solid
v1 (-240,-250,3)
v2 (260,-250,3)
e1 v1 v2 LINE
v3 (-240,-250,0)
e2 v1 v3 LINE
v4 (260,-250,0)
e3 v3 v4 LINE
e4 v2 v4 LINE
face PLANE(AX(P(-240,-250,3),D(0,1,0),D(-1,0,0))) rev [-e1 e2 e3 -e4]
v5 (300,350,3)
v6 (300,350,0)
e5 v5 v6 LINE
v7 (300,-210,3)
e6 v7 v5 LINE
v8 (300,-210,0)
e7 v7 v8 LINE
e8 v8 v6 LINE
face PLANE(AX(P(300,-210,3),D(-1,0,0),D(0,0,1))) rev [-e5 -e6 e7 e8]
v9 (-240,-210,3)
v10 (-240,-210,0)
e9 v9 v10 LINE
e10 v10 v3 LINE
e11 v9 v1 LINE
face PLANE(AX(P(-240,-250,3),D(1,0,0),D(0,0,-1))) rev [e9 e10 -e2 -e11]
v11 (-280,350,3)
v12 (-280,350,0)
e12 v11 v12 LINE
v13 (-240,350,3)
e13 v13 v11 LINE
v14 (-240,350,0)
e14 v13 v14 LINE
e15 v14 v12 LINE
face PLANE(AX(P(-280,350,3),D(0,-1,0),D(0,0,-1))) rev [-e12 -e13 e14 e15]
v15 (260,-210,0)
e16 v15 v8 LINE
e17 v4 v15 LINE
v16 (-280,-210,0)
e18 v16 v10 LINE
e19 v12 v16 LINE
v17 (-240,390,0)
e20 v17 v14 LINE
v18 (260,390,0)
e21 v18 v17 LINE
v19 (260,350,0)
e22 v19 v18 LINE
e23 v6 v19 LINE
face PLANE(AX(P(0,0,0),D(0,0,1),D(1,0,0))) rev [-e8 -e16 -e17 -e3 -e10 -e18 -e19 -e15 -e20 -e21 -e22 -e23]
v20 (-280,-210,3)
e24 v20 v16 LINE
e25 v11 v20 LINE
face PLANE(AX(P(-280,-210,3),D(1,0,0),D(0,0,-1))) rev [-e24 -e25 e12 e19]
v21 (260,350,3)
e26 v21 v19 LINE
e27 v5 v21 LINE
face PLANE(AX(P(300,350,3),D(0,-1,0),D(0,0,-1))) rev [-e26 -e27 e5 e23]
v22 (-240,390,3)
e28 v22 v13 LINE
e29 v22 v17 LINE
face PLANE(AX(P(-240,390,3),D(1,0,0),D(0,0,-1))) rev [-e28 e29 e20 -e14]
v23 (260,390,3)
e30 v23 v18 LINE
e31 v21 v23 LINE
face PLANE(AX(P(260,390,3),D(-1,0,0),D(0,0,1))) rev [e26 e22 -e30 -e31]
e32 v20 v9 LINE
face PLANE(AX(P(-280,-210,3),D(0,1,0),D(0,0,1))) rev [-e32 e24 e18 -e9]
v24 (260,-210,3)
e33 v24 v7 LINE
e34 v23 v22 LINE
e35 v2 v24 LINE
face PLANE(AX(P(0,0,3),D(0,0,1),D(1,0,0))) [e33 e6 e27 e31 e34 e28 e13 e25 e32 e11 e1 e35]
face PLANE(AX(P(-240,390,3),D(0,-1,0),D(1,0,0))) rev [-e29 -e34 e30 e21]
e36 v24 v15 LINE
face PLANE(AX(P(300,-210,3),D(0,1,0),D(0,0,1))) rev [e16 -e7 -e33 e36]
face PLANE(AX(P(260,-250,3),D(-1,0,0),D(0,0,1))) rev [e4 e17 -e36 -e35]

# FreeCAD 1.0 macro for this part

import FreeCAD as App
import Part
import Sketcher
from FreeCAD import Vector


def add_polygon(sketch, points):
    """Adds a closed chain of lines whose ends are joined by coincident constraints."""
    first, n = sketch.GeometryCount, len(points)
    for a, b in zip(points, points[1:] + points[:1]):
        sketch.addGeometry(Part.LineSegment(App.Vector(*a, 0), App.Vector(*b, 0)), False)
    for i in range(n):
        sketch.addConstraint(Sketcher.Constraint("Coincident", first + i, 2, first + (i + 1) % n, 1))

doc = App.newDocument("Part")
body = doc.addObject("PartDesign::Body", "Body")

sketch1 = body.newObject("Sketcher::SketchObject", "Sketch")
sketch1.AttachmentSupport = (doc.getObject("XY_Plane"), [""])
sketch1.MapMode = "FlatFace"
add_polygon(sketch1, [(-240, -250), (260, -250), (260, -210), (300, -210), (300, 350), (260, 350), (260, 390), (-240, 390), (-240, 350), (-280, 350), (-280, -210), (-240, -210)])
sketch1.addConstraint([
    Sketcher.Constraint("Horizontal", 0),
    Sketcher.Constraint("Vertical", 1),
    Sketcher.Constraint("Horizontal", 2),
    Sketcher.Constraint("Vertical", 3),
    Sketcher.Constraint("Horizontal", 4),
    Sketcher.Constraint("Vertical", 5),
    Sketcher.Constraint("Horizontal", 6),
    Sketcher.Constraint("Vertical", 7),
    Sketcher.Constraint("Horizontal", 8),
    Sketcher.Constraint("Vertical", 9),
    Sketcher.Constraint("Horizontal", 10),
    Sketcher.Constraint("Vertical", 11),
    Sketcher.Constraint("Horizontal", 4, 2, 7, 2),
    Sketcher.Constraint("Horizontal", 2, 2, 9, 2),
    Sketcher.Constraint("Vertical", 1, 2, 4, 2),
    Sketcher.Constraint("Vertical", 7, 2, 10, 2),
    Sketcher.Constraint("Equal", 4, 8),
    Sketcher.Constraint("Equal", 10, 1),
    Sketcher.Constraint("Equal", 1, 5),
    Sketcher.Constraint("DistanceX", 0, 1, 0, 2, 500.0),
    Sketcher.Constraint("DistanceX", 2, 1, 2, 2, 40.0),
    Sketcher.Constraint("DistanceY", 3, 1, 3, 2, 560.0),
    Sketcher.Constraint("DistanceX", -1, 1, 0, 2, 260.0),
    Sketcher.Constraint("DistanceY", 0, 2, -1, 1, 250.0),
])
pad1 = body.newObject("PartDesign::Pad", "Pad")
pad1.Profile = sketch1
pad1.Length = 3

doc.recompute()
